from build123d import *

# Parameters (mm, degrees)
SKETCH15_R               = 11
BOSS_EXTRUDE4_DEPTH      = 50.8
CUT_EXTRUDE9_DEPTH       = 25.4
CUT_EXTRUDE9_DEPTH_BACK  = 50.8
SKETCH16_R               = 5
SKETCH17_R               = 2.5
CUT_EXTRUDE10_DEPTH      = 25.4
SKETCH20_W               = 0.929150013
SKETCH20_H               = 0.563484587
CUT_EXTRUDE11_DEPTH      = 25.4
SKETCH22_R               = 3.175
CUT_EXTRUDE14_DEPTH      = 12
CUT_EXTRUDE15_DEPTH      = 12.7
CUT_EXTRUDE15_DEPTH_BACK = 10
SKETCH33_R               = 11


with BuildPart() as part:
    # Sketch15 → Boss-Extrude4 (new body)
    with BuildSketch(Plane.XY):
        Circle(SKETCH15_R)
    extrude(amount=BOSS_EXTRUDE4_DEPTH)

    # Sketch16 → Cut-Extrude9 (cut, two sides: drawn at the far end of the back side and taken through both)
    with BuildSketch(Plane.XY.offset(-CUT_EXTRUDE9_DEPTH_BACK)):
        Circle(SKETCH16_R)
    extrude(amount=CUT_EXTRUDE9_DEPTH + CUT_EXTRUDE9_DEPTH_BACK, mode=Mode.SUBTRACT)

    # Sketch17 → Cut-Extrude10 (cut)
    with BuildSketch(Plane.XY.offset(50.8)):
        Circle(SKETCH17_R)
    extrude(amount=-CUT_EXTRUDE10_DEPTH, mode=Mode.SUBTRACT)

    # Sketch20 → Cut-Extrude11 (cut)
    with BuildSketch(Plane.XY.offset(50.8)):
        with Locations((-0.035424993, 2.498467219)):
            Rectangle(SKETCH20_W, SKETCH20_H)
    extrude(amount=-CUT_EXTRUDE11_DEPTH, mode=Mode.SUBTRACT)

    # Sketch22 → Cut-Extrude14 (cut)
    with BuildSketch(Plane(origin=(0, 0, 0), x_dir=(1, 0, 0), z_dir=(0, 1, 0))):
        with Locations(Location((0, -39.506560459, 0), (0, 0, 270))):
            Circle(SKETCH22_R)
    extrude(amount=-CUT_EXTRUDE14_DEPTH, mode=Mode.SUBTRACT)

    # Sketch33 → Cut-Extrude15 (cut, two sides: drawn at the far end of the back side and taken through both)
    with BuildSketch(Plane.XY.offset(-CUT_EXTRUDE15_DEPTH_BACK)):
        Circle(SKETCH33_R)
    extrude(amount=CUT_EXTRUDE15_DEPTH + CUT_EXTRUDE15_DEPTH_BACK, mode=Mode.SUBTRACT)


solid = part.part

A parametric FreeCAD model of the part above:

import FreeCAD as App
import Part
import Sketcher
from FreeCAD import Vector
Q = App.Units.Quantity


def add_polygon(sketch, points):
    """Adds a closed chain of lines whose ends are joined by coincident constraints."""
    first, n = sketch.GeometryCount, len(points)
    for a, b in zip(points, points[1:] + points[:1]):
        sketch.addGeometry(Part.LineSegment(App.Vector(*a, 0), App.Vector(*b, 0)), False)
    for i in range(n):
        sketch.addConstraint(Sketcher.Constraint("Coincident", first + i, 2, first + (i + 1) % n, 1))

doc = App.newDocument("Part")
body = doc.addObject("PartDesign::Body", "Body")

# Sketch on XY plane
sketch1 = body.newObject("Sketcher::SketchObject", "Sketch")
sketch1.AttachmentSupport = (doc.getObject("XY_Plane"), [""])
sketch1.MapMode = "FlatFace"
sketch1.addGeometry(Part.Circle(Vector(0, 0, 0), Vector(0, 0, 1), 11), False)
sketch1.addConstraint([
    Sketcher.Constraint("Coincident", 0, 3, -1, 1),
    Sketcher.Constraint("Diameter", 0, Q("22 mm")),
])
pad1 = body.newObject("PartDesign::Pad", "Pad")
pad1.Profile = sketch1
pad1.Length = 50.8

# Sketch on XY plane
sketch2 = body.newObject("Sketcher::SketchObject", "Sketch001")
sketch2.AttachmentSupport = (doc.getObject("XY_Plane"), [""])
sketch2.MapMode = "FlatFace"
sketch2.addGeometry(Part.Circle(Vector(0, 0, 0), Vector(0, 0, 1), 5), False)
sketch2.addConstraint([
    Sketcher.Constraint("Coincident", 0, 3, -1, 1),
    Sketcher.Constraint("Diameter", 0, Q("10 mm")),
])
pocket1 = body.newObject("PartDesign::Pocket", "Pocket")
pocket1.Profile = sketch2
pocket1.Type = "TwoLengths"
pocket1.Length = 25.4
pocket1.Length2 = 50.8
pocket1.Reversed = True

# Sketch on XY plane
sketch3 = body.newObject("Sketcher::SketchObject", "Sketch002")
sketch3.AttachmentSupport = (doc.getObject("XY_Plane"), [""])
sketch3.MapMode = "FlatFace"
sketch3.AttachmentOffset = App.Placement(Vector(0, 0, 50.8), App.Rotation())
sketch3.addGeometry(Part.Circle(Vector(0, 0, 0), Vector(0, 0, 1), 2.5), False)
sketch3.addConstraint([
    Sketcher.Constraint("Coincident", 0, 3, -1, 1),
    Sketcher.Constraint("Diameter", 0, Q("5 mm")),
])
pocket2 = body.newObject("PartDesign::Pocket", "Pocket001")
pocket2.Profile = sketch3
pocket2.Length = 25.4

# Sketch on XY plane
sketch4 = body.newObject("Sketcher::SketchObject", "Sketch003")
sketch4.AttachmentSupport = (doc.getObject("XY_Plane"), [""])
sketch4.MapMode = "FlatFace"
sketch4.AttachmentOffset = App.Placement(Vector(0, 0, 50.8), App.Rotation())
add_polygon(sketch4, [(-0.5, 2.8), (-0.5, 2.2), (0.4, 2.2), (0.4, 2.8)])  # lines 0-3
sketch4.addConstraint([
    Sketcher.Constraint("Vertical", 0),
    Sketcher.Constraint("Horizontal", 1),
    Sketcher.Constraint("Vertical", 2),
    Sketcher.Constraint("Horizontal", 3),
    Sketcher.Constraint("DistanceX", 0, 2, -1, 1, Q("0.5 mm")),
    Sketcher.Constraint("DistanceX", 1, 1, 1, 2, Q("0.92915 mm")),
    Sketcher.Constraint("DistanceY", 0, 2, 0, 1, Q("0.563485 mm")),
    Sketcher.Constraint("DistanceY", -1, 1, 2, 2, Q("2.78021 mm")),
])
pocket3 = body.newObject("PartDesign::Pocket", "Pocket002")
pocket3.Profile = sketch4
pocket3.Length = 25.4

# Sketch on XZ plane
sketch5 = body.newObject("Sketcher::SketchObject", "Sketch004")
sketch5.AttachmentSupport = (doc.getObject("XZ_Plane"), [""])
sketch5.MapMode = "FlatFace"
sketch5.addGeometry(Part.Circle(Vector(0, 39.5, 0), Vector(0, 0, 1), 3.2), False)
sketch5.addConstraint([
    Sketcher.Constraint("PointOnObject", 0, 3, -2),
    Sketcher.Constraint("Diameter", 0, Q("6.35 mm")),
    Sketcher.Constraint("DistanceY", -1, 1, 0, 3, Q("39.50656 mm")),
])
pocket4 = body.newObject("PartDesign::Pocket", "Pocket003")
pocket4.Profile = sketch5
pocket4.Length = 12
pocket4.Reversed = True

# Sketch on XY plane
sketch6 = body.newObject("Sketcher::SketchObject", "Sketch005")
sketch6.AttachmentSupport = (doc.getObject("XY_Plane"), [""])
sketch6.MapMode = "FlatFace"
sketch6.addGeometry(Part.Circle(Vector(0, 0, 0), Vector(0, 0, 1), 11), False)
sketch6.addConstraint([
    Sketcher.Constraint("Coincident", 0, 3, -1, 1),
    Sketcher.Constraint("Diameter", 0, Q("22 mm")),
])
pocket5 = body.newObject("PartDesign::Pocket", "Pocket004")
pocket5.Profile = sketch6
pocket5.Type = "TwoLengths"
pocket5.Length = 12.7
pocket5.Length2 = 10
pocket5.Reversed = True

doc.recompute()
